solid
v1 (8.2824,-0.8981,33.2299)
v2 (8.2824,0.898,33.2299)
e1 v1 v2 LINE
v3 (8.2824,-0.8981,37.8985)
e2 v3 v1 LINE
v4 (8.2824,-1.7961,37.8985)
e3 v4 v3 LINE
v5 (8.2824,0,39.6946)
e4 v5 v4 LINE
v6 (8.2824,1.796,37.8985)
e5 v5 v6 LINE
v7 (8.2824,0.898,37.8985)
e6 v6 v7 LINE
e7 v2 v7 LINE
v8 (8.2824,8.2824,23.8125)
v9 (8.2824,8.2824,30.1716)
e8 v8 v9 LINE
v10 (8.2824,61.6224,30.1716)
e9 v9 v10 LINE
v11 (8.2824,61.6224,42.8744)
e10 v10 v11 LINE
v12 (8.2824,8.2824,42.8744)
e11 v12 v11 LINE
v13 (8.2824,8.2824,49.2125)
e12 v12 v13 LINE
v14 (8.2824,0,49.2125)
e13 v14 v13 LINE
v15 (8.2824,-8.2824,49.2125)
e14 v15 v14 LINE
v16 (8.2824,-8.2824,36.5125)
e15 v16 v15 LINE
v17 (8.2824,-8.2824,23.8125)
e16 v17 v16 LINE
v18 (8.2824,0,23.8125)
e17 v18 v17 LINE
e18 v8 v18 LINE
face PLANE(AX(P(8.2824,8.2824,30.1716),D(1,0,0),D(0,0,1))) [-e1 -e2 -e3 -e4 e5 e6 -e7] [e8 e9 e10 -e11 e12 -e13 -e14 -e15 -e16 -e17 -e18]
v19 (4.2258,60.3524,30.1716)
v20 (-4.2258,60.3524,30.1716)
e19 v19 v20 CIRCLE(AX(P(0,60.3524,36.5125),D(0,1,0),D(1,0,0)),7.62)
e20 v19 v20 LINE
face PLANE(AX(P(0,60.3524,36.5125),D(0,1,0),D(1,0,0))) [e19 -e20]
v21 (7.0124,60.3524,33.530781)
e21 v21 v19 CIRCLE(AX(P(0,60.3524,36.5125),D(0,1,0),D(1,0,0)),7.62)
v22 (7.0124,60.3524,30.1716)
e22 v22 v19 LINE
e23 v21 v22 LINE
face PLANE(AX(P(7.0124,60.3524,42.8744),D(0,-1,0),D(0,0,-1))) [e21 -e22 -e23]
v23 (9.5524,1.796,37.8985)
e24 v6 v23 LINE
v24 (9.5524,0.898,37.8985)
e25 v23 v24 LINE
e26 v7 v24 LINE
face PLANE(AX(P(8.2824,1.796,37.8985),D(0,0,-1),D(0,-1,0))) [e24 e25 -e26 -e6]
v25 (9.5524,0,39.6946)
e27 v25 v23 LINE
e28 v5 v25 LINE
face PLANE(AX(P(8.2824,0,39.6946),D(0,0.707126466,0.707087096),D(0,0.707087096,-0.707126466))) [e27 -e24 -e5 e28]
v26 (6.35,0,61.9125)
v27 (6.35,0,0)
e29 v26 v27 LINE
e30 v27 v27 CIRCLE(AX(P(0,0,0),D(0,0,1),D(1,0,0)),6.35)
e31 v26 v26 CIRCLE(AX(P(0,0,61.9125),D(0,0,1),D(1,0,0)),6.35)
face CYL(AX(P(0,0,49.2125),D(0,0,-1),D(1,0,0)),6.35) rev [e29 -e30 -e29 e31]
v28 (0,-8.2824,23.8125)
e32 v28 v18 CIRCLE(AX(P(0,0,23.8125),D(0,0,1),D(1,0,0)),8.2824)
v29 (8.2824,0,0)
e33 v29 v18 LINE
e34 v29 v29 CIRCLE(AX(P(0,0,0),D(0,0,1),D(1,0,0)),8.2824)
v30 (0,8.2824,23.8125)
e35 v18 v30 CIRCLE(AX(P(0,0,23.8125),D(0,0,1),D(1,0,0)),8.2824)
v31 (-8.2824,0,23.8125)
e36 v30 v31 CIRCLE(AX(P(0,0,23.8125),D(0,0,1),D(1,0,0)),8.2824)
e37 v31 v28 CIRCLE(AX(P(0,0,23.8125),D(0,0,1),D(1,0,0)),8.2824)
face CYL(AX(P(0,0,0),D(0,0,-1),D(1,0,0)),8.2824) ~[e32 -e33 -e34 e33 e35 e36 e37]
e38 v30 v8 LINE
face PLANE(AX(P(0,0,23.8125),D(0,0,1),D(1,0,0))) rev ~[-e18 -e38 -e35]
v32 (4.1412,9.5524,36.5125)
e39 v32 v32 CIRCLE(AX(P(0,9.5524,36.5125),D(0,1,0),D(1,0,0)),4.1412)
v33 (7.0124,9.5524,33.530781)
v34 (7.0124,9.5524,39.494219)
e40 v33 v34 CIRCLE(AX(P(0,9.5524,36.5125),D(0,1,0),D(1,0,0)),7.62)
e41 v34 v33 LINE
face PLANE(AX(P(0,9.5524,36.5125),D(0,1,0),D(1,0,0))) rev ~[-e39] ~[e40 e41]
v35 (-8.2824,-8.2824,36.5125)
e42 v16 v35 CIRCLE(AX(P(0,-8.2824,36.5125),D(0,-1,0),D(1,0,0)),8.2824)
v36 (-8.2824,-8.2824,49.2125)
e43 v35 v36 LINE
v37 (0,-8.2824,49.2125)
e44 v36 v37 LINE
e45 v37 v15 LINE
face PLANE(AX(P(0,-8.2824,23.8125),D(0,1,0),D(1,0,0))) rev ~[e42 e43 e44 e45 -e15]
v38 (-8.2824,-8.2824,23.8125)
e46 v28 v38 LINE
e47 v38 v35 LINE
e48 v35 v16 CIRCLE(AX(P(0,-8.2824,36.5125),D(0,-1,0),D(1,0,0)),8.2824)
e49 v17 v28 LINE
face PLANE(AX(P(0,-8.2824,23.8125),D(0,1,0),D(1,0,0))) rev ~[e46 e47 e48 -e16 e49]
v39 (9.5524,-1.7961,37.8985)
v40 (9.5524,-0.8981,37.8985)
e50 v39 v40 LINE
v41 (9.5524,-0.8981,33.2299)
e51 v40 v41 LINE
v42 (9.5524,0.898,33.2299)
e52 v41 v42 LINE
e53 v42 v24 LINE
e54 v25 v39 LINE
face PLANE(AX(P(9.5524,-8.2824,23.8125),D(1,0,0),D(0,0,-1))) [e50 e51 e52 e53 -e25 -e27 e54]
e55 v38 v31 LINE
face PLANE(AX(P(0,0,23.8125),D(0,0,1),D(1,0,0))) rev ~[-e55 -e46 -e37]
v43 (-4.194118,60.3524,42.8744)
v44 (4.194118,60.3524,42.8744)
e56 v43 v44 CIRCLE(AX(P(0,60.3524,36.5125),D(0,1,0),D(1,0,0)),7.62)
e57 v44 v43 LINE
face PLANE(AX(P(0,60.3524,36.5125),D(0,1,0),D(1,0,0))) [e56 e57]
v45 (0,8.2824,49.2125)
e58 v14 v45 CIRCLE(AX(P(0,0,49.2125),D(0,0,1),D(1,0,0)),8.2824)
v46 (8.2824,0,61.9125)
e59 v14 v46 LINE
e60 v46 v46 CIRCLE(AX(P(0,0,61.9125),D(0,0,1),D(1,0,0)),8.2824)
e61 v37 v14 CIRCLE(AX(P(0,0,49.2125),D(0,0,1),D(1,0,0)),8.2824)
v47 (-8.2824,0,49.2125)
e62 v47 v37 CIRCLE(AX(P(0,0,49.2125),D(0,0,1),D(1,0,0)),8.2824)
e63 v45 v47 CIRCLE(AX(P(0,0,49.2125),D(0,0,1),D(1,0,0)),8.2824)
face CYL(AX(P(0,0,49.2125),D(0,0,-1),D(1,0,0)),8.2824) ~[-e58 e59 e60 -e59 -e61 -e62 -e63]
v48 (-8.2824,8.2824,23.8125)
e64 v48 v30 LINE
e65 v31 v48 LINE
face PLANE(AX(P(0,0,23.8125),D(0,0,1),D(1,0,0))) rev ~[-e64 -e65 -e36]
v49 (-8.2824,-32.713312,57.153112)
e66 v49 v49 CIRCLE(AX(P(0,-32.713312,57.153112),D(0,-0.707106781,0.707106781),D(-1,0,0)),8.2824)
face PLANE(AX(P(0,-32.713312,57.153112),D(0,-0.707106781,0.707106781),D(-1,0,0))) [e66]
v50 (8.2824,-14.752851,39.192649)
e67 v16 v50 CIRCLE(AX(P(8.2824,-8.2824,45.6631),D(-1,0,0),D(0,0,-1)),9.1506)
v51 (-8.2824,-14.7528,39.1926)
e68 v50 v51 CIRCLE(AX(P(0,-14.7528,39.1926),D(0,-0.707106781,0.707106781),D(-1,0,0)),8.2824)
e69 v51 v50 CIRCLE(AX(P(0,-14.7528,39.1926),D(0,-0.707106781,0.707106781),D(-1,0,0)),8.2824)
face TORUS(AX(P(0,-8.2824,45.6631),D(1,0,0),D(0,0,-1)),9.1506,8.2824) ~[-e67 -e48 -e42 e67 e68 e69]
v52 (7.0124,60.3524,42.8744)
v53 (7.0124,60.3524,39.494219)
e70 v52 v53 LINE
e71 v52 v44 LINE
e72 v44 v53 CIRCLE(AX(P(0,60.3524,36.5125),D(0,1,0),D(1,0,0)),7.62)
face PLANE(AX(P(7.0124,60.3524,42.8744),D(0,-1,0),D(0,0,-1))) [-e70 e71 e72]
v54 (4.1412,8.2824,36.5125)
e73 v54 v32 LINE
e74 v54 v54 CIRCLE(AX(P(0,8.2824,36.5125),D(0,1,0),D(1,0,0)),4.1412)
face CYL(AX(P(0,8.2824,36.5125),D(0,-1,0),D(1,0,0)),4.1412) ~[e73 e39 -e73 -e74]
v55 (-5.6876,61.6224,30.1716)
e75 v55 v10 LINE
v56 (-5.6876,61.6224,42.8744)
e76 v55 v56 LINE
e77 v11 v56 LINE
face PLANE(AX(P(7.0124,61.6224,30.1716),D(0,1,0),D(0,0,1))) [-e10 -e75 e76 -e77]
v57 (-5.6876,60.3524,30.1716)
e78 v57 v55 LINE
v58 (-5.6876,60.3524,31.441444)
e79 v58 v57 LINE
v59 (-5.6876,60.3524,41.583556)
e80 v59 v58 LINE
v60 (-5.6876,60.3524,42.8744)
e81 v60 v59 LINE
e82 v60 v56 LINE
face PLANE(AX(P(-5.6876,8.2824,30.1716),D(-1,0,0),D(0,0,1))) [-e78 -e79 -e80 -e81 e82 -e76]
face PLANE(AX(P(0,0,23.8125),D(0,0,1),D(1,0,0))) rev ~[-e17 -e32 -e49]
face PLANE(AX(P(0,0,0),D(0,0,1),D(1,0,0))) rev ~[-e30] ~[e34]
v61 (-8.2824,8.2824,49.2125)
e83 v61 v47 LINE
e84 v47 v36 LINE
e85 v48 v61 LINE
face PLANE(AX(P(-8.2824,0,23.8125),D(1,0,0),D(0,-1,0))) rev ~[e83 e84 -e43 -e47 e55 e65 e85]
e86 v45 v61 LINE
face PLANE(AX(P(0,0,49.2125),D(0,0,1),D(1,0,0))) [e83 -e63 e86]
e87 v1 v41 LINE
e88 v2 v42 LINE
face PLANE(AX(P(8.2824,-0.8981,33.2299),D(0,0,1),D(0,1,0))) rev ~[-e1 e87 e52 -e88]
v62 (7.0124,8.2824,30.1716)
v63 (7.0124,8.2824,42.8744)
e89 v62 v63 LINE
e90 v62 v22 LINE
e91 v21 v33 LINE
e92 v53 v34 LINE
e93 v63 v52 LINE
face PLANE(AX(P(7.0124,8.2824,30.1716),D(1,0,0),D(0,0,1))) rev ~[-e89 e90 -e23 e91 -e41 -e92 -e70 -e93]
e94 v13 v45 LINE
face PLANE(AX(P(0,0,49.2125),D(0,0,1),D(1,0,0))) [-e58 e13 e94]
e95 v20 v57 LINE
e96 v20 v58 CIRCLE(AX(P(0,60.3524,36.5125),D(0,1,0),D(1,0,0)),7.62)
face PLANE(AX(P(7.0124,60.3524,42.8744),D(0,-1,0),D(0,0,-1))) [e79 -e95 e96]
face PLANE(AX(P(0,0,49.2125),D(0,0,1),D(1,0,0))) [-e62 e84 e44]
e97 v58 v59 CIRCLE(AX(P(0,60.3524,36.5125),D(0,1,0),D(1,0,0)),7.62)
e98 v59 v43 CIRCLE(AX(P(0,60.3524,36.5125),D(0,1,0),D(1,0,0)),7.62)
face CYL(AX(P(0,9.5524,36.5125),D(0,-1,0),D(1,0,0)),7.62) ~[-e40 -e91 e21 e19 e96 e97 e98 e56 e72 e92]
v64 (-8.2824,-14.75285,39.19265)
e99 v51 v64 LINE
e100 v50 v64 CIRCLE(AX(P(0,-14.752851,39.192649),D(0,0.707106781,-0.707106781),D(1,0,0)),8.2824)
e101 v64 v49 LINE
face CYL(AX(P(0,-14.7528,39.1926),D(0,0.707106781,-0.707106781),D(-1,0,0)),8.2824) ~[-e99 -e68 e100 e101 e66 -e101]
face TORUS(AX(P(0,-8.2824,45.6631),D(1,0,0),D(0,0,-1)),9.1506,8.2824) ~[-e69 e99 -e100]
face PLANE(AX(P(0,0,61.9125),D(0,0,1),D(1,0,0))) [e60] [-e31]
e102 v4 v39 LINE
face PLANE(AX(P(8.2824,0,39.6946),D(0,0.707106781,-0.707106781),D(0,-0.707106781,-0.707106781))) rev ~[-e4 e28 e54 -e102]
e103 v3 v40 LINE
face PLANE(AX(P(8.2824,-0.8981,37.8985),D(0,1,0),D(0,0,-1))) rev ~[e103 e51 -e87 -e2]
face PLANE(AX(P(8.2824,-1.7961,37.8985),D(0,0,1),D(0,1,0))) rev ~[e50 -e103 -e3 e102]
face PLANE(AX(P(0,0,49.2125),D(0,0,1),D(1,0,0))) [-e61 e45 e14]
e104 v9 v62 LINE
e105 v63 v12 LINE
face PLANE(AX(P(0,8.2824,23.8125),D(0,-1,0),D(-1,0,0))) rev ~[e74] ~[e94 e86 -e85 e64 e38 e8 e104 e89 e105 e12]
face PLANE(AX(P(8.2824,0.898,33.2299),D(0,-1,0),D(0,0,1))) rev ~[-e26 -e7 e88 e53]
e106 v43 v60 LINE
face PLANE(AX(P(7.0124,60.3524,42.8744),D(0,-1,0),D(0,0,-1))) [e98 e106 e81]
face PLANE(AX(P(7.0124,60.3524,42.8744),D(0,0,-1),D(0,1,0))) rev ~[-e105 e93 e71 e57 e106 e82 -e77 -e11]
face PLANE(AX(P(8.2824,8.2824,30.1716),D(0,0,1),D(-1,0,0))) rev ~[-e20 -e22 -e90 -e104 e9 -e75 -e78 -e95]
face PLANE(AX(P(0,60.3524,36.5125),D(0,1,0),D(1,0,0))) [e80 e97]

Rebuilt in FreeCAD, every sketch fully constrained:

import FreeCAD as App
import Part
import Sketcher
Q = App.Units.Quantity


def add_polygon(sketch, points):
    """Adds a closed chain of lines whose ends are joined by coincident constraints."""
    first, n = sketch.GeometryCount, len(points)
    for a, b in zip(points, points[1:] + points[:1]):
        sketch.addGeometry(Part.LineSegment(App.Vector(*a, 0), App.Vector(*b, 0)), False)
    for i in range(n):
        sketch.addConstraint(Sketcher.Constraint("Coincident", first + i, 2, first + (i + 1) % n, 1))

doc = App.newDocument("Part")
body = doc.addObject("PartDesign::Body", "Body")

# Sketch on XY plane
sketch1 = body.newObject("Sketcher::SketchObject", "Sketch")
sketch1.AttachmentSupport = (doc.getObject("XY_Plane"), [""])
sketch1.MapMode = "FlatFace"
sketch1.addGeometry(Part.Circle(App.Vector(0, 0, 0), App.Vector(0, 0, 1), 8), False)
sketch1.addGeometry(Part.Circle(App.Vector(0, 0, 0), App.Vector(0, 0, 1), 6), False)
sketch1.addConstraint(Sketcher.Constraint("Coincident", 0, 3, -1, 1))
sketch1.addConstraint(Sketcher.Constraint("Coincident", 1, 3, -1, 1))
sketch1.addConstraint(Sketcher.Constraint("Diameter", 1, Q("0.5 in")))
sketch1.addConstraint(Sketcher.Constraint("Diameter", 0, 16.5648))
pad1 = body.newObject("PartDesign::Pad", "Pad")
pad1.Profile = sketch1
pad1.Length = Q("0.9375 in")

# Sketch on XY plane
sketch2 = body.newObject("Sketcher::SketchObject", "Sketch001")
sketch2.AttachmentSupport = (doc.getObject("XY_Plane"), [""])
sketch2.MapMode = "FlatFace"
sketch2.AttachmentOffset = App.Placement(App.Vector(0, 0, 0.9375 * 25.4), App.Rotation())
add_polygon(sketch2, [(8, -8), (8, 8), (-8, 8), (-8, -8)])  # lines 0-3
sketch2.addGeometry(Part.Circle(App.Vector(0, 0, 0), App.Vector(0, 0, 1), 6), False)  # 4
sketch2.addConstraint(Sketcher.Constraint("Vertical", 0))
sketch2.addConstraint(Sketcher.Constraint("Horizontal", 1))
sketch2.addConstraint(Sketcher.Constraint("Vertical", 2))
sketch2.addConstraint(Sketcher.Constraint("Horizontal", 3))
sketch2.addConstraint(Sketcher.Constraint("Coincident", 4, 3, -1, 1))
sketch2.addConstraint(Sketcher.Constraint("Symmetric", 0, 2, 2, 2, -1, 1))
sketch2.addConstraint(Sketcher.Constraint("Equal", 3, 0))
sketch2.addConstraint(Sketcher.Constraint("Diameter", 4, Q("0.5 in")))
sketch2.addConstraint(Sketcher.Constraint("DistanceX", 1, 2, 1, 1, 16.5648))
pad2 = body.newObject("PartDesign::Pad", "Pad001")
pad2.Profile = sketch2
pad2.Length = Q("1 in")

# Sketch on XY plane
sketch3 = body.newObject("Sketcher::SketchObject", "Sketch002")
sketch3.AttachmentSupport = (doc.getObject("XY_Plane"), [""])
sketch3.MapMode = "FlatFace"
sketch3.AttachmentOffset = App.Placement(App.Vector(0, 0, 1.9375 * 25.4), App.Rotation())
sketch3.addGeometry(Part.Circle(App.Vector(0, 0, 0), App.Vector(0, 0, 1), 8), False)
sketch3.addGeometry(Part.Circle(App.Vector(0, 0, 0), App.Vector(0, 0, 1), 6), False)
sketch3.addConstraint(Sketcher.Constraint("Coincident", 0, 3, -1, 1))
sketch3.addConstraint(Sketcher.Constraint("Coincident", 1, 3, -1, 1))
sketch3.addConstraint(Sketcher.Constraint("Diameter", 1, Q("0.5 in")))
sketch3.addConstraint(Sketcher.Constraint("Diameter", 0, 16.5648))
pad3 = body.newObject("PartDesign::Pad", "Pad002")
pad3.Profile = sketch3
pad3.Length = Q("0.5 in")

# Sketch on YZ plane
sketch4 = body.newObject("Sketcher::SketchObject", "Sketch003")
sketch4.AttachmentSupport = (doc.getObject("YZ_Plane"), [""])
sketch4.MapMode = "FlatFace"
sketch4.AttachmentOffset = App.Placement(App.Vector(0, 0, 8.2824), App.Rotation())
add_polygon(sketch4, [(1.8, 37.9), (0, 39.7), (-1.8, 37.9), (-0.9, 37.9), (-0.9, 33.2), (0.9, 33.2), (0.9, 37.9)])  # lines 0-6
sketch4.addConstraint(Sketcher.Constraint("Horizontal", 2))
sketch4.addConstraint(Sketcher.Constraint("Vertical", 3))
sketch4.addConstraint(Sketcher.Constraint("Horizontal", 4))
sketch4.addConstraint(Sketcher.Constraint("Vertical", 5))
sketch4.addConstraint(Sketcher.Constraint("Horizontal", 6))
sketch4.addConstraint(Sketcher.Constraint("Symmetric", 2, 2, 5, 2, -2))
sketch4.addConstraint(Sketcher.Constraint("PointOnObject", 0, 2, -2))
sketch4.addConstraint(Sketcher.Constraint("Perpendicular", 0, 1))
sketch4.addConstraint(Sketcher.Constraint("Equal", 2, 6))
sketch4.addConstraint(Sketcher.Constraint("Distance", 0, Q("0.1 in")))
sketch4.addConstraint(Sketcher.Constraint("DistanceY", 3, 2, 3, 1, Q("0.1838 in")))
sketch4.addConstraint(Sketcher.Constraint("DistanceX", 2, 1, 2, 2, 0.898))
sketch4.addConstraint(Sketcher.Constraint("DistanceY", -1, 1, 0, 2, 39.6946))
pad4 = body.newObject("PartDesign::Pad", "Pad003")
pad4.Profile = sketch4
pad4.Length = Q("0.05 in")

# Sketch on XZ plane
sketch5 = body.newObject("Sketcher::SketchObject", "Sketch004")
sketch5.AttachmentSupport = (doc.getObject("XZ_Plane"), [""])
sketch5.MapMode = "FlatFace"
sketch5.AttachmentOffset = App.Placement(App.Vector(0, 0, -8.2824), App.Rotation())
sketch5.addGeometry(Part.Circle(App.Vector(0, 36.5, 0), App.Vector(0, 0, 1), 4.1), False)
sketch5.addConstraint(Sketcher.Constraint("PointOnObject", 0, 3, -2))
sketch5.addConstraint(Sketcher.Constraint("Diameter", 0, 8.2824))
sketch5.addConstraint(Sketcher.Constraint("DistanceY", -1, 1, 0, 3, Q("1.4375 in")))
pad5 = body.newObject("PartDesign::Pad", "Pad004")
pad5.Profile = sketch5
pad5.Length = Q("0.05 in")
pad5.Reversed = True

# Sketch on XZ plane
sketch6 = body.newObject("Sketcher::SketchObject", "Sketch005")
sketch6.AttachmentSupport = (doc.getObject("XZ_Plane"), [""])
sketch6.MapMode = "FlatFace"
sketch6.AttachmentOffset = App.Placement(App.Vector(0, 0, -9.5524), App.Rotation())
sketch6.addGeometry(Part.Circle(App.Vector(0, 37, 0), App.Vector(0, 0, 1), 8), False)
sketch6.addConstraint(Sketcher.Constraint("PointOnObject", 0, 3, -2))
sketch6.addConstraint(Sketcher.Constraint("Diameter", 0, Q("0.6 in")))
sketch6.addConstraint(Sketcher.Constraint("DistanceY", -1, 1, 0, 3, Q("1.4375 in")))
pad6 = body.newObject("PartDesign::Pad", "Pad005")
pad6.Profile = sketch6
pad6.Length = Q("2 in")
pad6.Reversed = True

# Sketch on XZ plane
sketch7 = body.newObject("Sketcher::SketchObject", "Sketch006")
sketch7.AttachmentSupport = (doc.getObject("XZ_Plane"), [""])
sketch7.MapMode = "FlatFace"
sketch7.AttachmentOffset = App.Placement(App.Vector(0, 0, -8.2824), App.Rotation())
add_polygon(sketch7, [(8.3, 42.9), (8.3, 30.2), (7, 30.2), (7, 42.9)])  # lines 0-3
sketch7.addConstraint(Sketcher.Constraint("Vertical", 0))
sketch7.addConstraint(Sketcher.Constraint("Horizontal", 1))
sketch7.addConstraint(Sketcher.Constraint("Vertical", 2))
sketch7.addConstraint(Sketcher.Constraint("Horizontal", 3))
sketch7.addConstraint(Sketcher.Constraint("DistanceX", 1, 2, 1, 1, Q("0.05 in")))
sketch7.addConstraint(Sketcher.Constraint("DistanceY", 0, 2, 0, 1, Q("0.5001 in")))
sketch7.addConstraint(Sketcher.Constraint("DistanceX", -1, 1, 0, 2, 8.2824))
sketch7.addConstraint(Sketcher.Constraint("DistanceY", -1, 1, 0, 2, 30.1716))
pad7 = body.newObject("PartDesign::Pad", "Pad006")
pad7.Profile = sketch7
pad7.Length = Q("2.1 in")
pad7.Reversed = True

# Sketch on YZ plane
sketch8 = body.newObject("Sketcher::SketchObject", "Sketch007")
sketch8.AttachmentSupport = (doc.getObject("YZ_Plane"), [""])
sketch8.MapMode = "FlatFace"
sketch8.AttachmentOffset = App.Placement(App.Vector(0, 0, 7.0124), App.Rotation())
add_polygon(sketch8, [(60.4, 30.2), (60.4, 42.9), (61.6, 42.9), (61.6, 30.2)])  # lines 0-3
sketch8.addConstraint(Sketcher.Constraint("Vertical", 0))
sketch8.addConstraint(Sketcher.Constraint("Horizontal", 1))
sketch8.addConstraint(Sketcher.Constraint("Vertical", 2))
sketch8.addConstraint(Sketcher.Constraint("Horizontal", 3))
sketch8.addConstraint(Sketcher.Constraint("DistanceX", 1, 1, 1, 2, Q("0.05 in")))
sketch8.addConstraint(Sketcher.Constraint("DistanceY", 0, 1, 0, 2, Q("0.5001 in")))
sketch8.addConstraint(Sketcher.Constraint("DistanceX", -1, 1, 0, 2, 60.3524))
sketch8.addConstraint(Sketcher.Constraint("DistanceY", -1, 1, 0, 2, 42.8744))
pad8 = body.newObject("PartDesign::Pad", "Pad007")
pad8.Profile = sketch8
pad8.Length = Q("0.5 in")
pad8.Reversed = True

# Sketch on XZ plane
sketch9 = body.newObject("Sketcher::SketchObject", "Sketch008")
sketch9.AttachmentSupport = (doc.getObject("XZ_Plane"), [""])
sketch9.MapMode = "FlatFace"
sketch9.AttachmentOffset = App.Placement(App.Vector(0, 0, 8.2824), App.Rotation())
sketch9.addGeometry(Part.Circle(App.Vector(0, 37, 0), App.Vector(0, 0, 1), 8), False)
sketch9.addGeometry(Part.LineSegment(App.Vector(0, 46, 0), App.Vector(-10, 46, 0)), True)  # axis
sketch9.addConstraint(Sketcher.Constraint("Horizontal", 1))
sketch9.addConstraint(Sketcher.Constraint("PointOnObject", 0, 3, -2))
sketch9.addConstraint(Sketcher.Constraint("PointOnObject", 1, 1, -2))
sketch9.addConstraint(Sketcher.Constraint("Diameter", 0, 16.5648))
sketch9.addConstraint(Sketcher.Constraint("DistanceX", 1, 2, 1, 1, Q("0.3937 in")))
sketch9.addConstraint(Sketcher.Constraint("DistanceY", -1, 1, 0, 3, Q("1.4375 in")))
sketch9.addConstraint(Sketcher.Constraint("DistanceY", -1, 1, 1, 1, 45.663))
revolution = body.newObject("PartDesign::Revolution", "Revolution")
revolution.Profile = sketch9
revolution.ReferenceAxis = (sketch9, ["Axis0"])
revolution.Angle = 45

# Sketch on an angled plane
sketch10 = body.newObject("Sketcher::SketchObject", "Sketch009")
sketch10.Placement = App.Placement(App.Vector(0, -14.7528, 39.1926), App.Rotation(App.Vector(-1, 0, 0), App.Vector(0, -0.707106781, -0.707106781), App.Vector(0, -0.707106781, 0.707106781), "ZXY"))
sketch10.addGeometry(Part.Circle(App.Vector(0, 0, 0), App.Vector(0, 0, 1), 8), False)
sketch10.addConstraint(Sketcher.Constraint("Coincident", 0, 3, -1, 1))
sketch10.addConstraint(Sketcher.Constraint("Diameter", 0, 16.5648))
pad9 = body.newObject("PartDesign::Pad", "Pad008")
pad9.Profile = sketch10
pad9.Length = Q("1 in")

doc.recompute()
